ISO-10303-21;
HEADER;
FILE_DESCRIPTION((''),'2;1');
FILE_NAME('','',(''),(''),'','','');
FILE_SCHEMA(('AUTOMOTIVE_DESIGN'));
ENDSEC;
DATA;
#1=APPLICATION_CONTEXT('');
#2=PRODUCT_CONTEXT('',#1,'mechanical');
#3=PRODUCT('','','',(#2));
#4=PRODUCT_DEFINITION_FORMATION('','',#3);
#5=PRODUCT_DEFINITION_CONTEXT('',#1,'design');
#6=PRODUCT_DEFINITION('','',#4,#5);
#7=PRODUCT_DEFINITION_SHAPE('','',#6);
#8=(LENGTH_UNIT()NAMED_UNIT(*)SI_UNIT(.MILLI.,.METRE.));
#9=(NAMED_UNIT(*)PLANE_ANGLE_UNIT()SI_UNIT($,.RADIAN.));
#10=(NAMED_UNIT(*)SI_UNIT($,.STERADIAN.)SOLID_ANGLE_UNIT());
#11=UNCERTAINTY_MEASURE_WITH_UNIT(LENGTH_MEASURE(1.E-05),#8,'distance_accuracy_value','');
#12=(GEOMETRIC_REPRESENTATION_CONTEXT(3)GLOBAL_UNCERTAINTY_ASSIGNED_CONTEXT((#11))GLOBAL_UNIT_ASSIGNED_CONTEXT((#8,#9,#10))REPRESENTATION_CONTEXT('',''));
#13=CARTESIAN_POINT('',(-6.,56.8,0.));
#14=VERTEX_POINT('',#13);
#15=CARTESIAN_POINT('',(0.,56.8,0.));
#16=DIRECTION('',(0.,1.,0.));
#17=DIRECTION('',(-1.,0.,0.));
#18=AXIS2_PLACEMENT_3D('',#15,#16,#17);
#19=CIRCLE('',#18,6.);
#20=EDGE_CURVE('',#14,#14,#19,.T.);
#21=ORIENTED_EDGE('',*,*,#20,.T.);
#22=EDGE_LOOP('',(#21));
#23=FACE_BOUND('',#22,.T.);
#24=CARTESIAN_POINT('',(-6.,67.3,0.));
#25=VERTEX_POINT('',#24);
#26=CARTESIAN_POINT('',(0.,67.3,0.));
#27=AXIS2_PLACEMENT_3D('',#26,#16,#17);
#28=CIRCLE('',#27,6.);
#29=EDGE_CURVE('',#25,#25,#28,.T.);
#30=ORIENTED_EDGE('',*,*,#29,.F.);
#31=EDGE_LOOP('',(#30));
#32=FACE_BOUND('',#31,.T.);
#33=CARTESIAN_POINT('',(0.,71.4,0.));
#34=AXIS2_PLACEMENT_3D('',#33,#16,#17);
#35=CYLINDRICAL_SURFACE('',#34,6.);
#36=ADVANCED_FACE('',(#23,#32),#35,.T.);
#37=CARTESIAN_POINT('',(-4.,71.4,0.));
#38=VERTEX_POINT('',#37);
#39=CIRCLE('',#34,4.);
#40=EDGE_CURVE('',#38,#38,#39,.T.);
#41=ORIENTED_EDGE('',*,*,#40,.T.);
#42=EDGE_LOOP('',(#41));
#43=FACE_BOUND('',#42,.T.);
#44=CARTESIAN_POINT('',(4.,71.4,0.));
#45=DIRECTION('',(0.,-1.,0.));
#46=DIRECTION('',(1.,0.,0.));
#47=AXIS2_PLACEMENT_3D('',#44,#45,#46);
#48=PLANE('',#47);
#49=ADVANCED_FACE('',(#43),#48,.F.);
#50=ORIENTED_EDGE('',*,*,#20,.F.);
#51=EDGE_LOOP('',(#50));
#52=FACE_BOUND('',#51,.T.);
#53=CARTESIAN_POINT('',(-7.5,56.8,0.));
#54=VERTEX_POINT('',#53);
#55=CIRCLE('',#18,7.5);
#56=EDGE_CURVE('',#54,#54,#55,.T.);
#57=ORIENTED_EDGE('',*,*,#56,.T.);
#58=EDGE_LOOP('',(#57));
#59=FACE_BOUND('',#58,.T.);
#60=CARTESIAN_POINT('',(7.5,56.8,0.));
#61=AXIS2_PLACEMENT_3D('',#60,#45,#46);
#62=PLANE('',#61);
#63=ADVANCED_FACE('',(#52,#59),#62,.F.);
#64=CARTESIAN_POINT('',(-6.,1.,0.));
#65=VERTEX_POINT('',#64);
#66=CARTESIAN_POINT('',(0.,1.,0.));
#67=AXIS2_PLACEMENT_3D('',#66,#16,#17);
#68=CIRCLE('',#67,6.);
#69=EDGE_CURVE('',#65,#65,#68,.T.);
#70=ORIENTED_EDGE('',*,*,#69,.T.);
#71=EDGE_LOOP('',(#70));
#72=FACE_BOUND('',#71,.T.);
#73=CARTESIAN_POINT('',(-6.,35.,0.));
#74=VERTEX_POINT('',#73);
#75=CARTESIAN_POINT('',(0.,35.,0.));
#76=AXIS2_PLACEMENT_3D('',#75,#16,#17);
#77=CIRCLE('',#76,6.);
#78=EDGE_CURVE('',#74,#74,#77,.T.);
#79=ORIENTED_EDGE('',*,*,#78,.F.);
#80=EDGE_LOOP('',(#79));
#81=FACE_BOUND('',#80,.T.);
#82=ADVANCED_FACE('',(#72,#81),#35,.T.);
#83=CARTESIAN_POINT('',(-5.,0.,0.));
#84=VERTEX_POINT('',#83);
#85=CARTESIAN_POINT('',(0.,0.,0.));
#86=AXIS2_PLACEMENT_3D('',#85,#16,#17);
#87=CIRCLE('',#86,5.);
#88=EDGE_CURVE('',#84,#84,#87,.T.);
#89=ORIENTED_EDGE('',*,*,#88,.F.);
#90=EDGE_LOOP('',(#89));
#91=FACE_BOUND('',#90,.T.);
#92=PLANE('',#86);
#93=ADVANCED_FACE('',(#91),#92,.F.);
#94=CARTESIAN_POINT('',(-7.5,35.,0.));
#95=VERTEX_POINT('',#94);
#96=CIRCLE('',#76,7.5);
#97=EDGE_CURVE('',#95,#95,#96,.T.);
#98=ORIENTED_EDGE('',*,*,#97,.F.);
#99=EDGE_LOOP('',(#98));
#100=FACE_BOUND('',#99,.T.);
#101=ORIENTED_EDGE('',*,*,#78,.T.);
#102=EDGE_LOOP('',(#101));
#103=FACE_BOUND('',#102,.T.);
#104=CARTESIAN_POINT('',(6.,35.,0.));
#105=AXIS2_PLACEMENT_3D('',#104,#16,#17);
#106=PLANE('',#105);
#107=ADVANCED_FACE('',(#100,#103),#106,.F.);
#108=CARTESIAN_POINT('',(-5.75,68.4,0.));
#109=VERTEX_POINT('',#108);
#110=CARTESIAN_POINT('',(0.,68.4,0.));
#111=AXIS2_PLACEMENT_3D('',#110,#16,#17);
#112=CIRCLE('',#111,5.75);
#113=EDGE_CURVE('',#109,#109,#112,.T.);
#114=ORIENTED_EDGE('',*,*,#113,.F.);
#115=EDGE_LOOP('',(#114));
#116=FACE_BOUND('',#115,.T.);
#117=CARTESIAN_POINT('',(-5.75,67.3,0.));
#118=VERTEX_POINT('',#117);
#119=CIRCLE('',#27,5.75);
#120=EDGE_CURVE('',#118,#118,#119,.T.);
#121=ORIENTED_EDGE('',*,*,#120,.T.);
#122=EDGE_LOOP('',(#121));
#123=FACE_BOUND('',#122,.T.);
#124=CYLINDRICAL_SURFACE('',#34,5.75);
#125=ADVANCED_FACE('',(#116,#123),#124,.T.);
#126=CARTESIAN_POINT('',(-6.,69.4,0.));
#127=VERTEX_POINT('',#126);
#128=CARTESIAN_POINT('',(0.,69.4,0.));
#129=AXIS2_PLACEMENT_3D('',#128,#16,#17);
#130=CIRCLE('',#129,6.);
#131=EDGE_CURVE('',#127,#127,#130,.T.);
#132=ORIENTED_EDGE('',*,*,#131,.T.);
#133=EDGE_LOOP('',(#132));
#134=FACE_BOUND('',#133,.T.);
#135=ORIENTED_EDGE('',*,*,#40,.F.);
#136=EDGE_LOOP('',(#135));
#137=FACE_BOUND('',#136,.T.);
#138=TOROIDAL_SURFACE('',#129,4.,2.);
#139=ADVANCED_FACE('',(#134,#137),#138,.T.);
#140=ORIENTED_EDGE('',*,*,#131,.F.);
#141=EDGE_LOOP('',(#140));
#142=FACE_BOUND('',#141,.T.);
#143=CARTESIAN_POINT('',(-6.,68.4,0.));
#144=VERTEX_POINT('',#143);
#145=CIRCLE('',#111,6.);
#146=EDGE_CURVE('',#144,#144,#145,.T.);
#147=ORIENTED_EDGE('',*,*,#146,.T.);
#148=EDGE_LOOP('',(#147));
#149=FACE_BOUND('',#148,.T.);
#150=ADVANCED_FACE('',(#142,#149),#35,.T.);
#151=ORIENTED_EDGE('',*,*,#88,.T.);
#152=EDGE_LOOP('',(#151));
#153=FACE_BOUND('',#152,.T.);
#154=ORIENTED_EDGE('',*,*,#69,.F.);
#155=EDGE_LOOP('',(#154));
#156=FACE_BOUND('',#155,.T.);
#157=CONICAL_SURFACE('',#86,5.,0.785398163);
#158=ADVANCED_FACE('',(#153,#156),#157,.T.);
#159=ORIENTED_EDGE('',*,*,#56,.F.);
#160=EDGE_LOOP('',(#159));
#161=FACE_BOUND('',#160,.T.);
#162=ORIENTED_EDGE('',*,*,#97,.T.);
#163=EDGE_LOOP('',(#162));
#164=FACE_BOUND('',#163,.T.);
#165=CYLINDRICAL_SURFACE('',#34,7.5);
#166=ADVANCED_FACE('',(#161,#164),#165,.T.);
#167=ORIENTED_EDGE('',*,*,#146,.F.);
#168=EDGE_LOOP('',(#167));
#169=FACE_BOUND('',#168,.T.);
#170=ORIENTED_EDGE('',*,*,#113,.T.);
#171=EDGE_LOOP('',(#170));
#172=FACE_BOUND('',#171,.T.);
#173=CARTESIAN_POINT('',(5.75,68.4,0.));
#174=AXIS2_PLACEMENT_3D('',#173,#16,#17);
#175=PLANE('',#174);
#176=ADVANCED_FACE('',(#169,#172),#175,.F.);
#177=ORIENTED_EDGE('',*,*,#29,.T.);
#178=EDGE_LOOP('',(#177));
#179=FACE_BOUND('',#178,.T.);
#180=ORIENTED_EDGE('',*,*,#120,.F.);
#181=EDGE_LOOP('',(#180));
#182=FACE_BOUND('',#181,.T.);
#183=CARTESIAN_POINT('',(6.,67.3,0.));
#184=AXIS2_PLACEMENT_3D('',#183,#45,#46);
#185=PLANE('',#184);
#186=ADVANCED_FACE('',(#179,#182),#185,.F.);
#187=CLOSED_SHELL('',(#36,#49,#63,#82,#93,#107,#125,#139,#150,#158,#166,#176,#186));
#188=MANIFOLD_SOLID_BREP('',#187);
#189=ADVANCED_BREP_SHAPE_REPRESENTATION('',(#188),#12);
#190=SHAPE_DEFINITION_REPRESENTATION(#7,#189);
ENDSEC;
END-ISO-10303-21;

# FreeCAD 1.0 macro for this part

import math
import FreeCAD as App
import Part
import Sketcher
Q = App.Units.Quantity

doc = App.newDocument("Part")
body = doc.addObject("PartDesign::Body", "Body")

# Sketch on XY plane
sketch1 = body.newObject("Sketcher::SketchObject", "Sketch")
sketch1.AttachmentSupport = (doc.getObject("XY_Plane"), [""])
sketch1.MapMode = "FlatFace"
sketch1.addGeometry([
    Part.LineSegment(App.Vector(0, 71.4, 0), App.Vector(0, 0, 0)),  # 0
    Part.LineSegment(App.Vector(0, 0, 0), App.Vector(5, 0, 0)),  # 1
    Part.LineSegment(App.Vector(5, 0, 0), App.Vector(6, 1, 0)),  # 2
    Part.LineSegment(App.Vector(6, 1, 0), App.Vector(6, 35, 0)),  # 3
    Part.LineSegment(App.Vector(6, 35, 0), App.Vector(7.5, 35, 0)),  # 4
    Part.LineSegment(App.Vector(7.5, 35, 0), App.Vector(7.5, 56.8, 0)),  # 5
    Part.LineSegment(App.Vector(7.5, 56.8, 0), App.Vector(6, 56.8, 0)),  # 6
    Part.LineSegment(App.Vector(6, 56.8, 0), App.Vector(6, 67.3, 0)),  # 7
    Part.LineSegment(App.Vector(6, 67.3, 0), App.Vector(5.75, 67.3, 0)),  # 8
    Part.LineSegment(App.Vector(5.75, 67.3, 0), App.Vector(5.75, 68.4, 0)),  # 9
    Part.LineSegment(App.Vector(5.75, 68.4, 0), App.Vector(6, 68.4, 0)),  # 10
    Part.LineSegment(App.Vector(6, 68.4, 0), App.Vector(6, 69.4, 0)),  # 11
    Part.ArcOfCircle(Part.Circle(App.Vector(4, 69.4, 0), App.Vector(0, 0, 1), 2), math.radians(0), math.radians(90)),  # 12
    Part.LineSegment(App.Vector(4, 71.4, 0), App.Vector(0, 71.4, 0)),  # 13
], False)
sketch1.addConstraint([
    Sketcher.Constraint("Coincident", 0, 2, 1, 1),
    Sketcher.Constraint("Coincident", 1, 2, 2, 1),
    Sketcher.Constraint("Coincident", 2, 2, 3, 1),
    Sketcher.Constraint("Coincident", 3, 2, 4, 1),
    Sketcher.Constraint("Coincident", 4, 2, 5, 1),
    Sketcher.Constraint("Coincident", 5, 2, 6, 1),
    Sketcher.Constraint("Coincident", 6, 2, 7, 1),
    Sketcher.Constraint("Coincident", 7, 2, 8, 1),
    Sketcher.Constraint("Coincident", 8, 2, 9, 1),
    Sketcher.Constraint("Coincident", 9, 2, 10, 1),
    Sketcher.Constraint("Coincident", 10, 2, 11, 1),
    Sketcher.Constraint("Tangent", 11, 2, 12, 1),
    Sketcher.Constraint("Tangent", 12, 2, 13, 1),
    Sketcher.Constraint("Coincident", 13, 2, 0, 1),
    Sketcher.Constraint("Vertical", 0),
    Sketcher.Constraint("Horizontal", 1),
    Sketcher.Constraint("Vertical", 3),
    Sketcher.Constraint("Horizontal", 4),
    Sketcher.Constraint("Vertical", 5),
    Sketcher.Constraint("Horizontal", 6),
    Sketcher.Constraint("Vertical", 7),
    Sketcher.Constraint("Horizontal", 8),
    Sketcher.Constraint("Vertical", 9),
    Sketcher.Constraint("Horizontal", 10),
    Sketcher.Constraint("Vertical", 11),
    Sketcher.Constraint("Horizontal", 13),
    Sketcher.Constraint("Coincident", 0, 2, -1, 1),
    Sketcher.Constraint("Vertical", 3, 2, 6, 2),
    Sketcher.Constraint("Vertical", 7, 2, 10, 2),
    Sketcher.Constraint("Radius", 12, 2.0),
    Sketcher.Constraint("DistanceX", 1, 1, 1, 2, 5.0),
    Sketcher.Constraint("DistanceX", 13, 2, 13, 1, 4.0),
    Sketcher.Constraint("DistanceY", 3, 1, 3, 2, 34.0),
    Sketcher.Constraint("DistanceY", 11, 1, 11, 2, 1.0),
    Sketcher.Constraint("Angle", 2, Q("45 deg")),
    Sketcher.Constraint("DistanceX", 4, 1, 4, 2, 1.5),
    Sketcher.Constraint("DistanceY", 0, 2, 0, 1, 71.4),
    Sketcher.Constraint("DistanceY", 5, 1, 5, 2, 21.8),
    Sketcher.Constraint("DistanceY", 7, 1, 7, 2, 10.5),
    Sketcher.Constraint("DistanceX", 8, 2, 8, 1, 0.25),
])
revolution = body.newObject("PartDesign::Revolution", "Revolution")
revolution.Profile = sketch1
revolution.ReferenceAxis = (sketch1, ["V_Axis"])
revolution.Angle = 360

doc.recompute()
